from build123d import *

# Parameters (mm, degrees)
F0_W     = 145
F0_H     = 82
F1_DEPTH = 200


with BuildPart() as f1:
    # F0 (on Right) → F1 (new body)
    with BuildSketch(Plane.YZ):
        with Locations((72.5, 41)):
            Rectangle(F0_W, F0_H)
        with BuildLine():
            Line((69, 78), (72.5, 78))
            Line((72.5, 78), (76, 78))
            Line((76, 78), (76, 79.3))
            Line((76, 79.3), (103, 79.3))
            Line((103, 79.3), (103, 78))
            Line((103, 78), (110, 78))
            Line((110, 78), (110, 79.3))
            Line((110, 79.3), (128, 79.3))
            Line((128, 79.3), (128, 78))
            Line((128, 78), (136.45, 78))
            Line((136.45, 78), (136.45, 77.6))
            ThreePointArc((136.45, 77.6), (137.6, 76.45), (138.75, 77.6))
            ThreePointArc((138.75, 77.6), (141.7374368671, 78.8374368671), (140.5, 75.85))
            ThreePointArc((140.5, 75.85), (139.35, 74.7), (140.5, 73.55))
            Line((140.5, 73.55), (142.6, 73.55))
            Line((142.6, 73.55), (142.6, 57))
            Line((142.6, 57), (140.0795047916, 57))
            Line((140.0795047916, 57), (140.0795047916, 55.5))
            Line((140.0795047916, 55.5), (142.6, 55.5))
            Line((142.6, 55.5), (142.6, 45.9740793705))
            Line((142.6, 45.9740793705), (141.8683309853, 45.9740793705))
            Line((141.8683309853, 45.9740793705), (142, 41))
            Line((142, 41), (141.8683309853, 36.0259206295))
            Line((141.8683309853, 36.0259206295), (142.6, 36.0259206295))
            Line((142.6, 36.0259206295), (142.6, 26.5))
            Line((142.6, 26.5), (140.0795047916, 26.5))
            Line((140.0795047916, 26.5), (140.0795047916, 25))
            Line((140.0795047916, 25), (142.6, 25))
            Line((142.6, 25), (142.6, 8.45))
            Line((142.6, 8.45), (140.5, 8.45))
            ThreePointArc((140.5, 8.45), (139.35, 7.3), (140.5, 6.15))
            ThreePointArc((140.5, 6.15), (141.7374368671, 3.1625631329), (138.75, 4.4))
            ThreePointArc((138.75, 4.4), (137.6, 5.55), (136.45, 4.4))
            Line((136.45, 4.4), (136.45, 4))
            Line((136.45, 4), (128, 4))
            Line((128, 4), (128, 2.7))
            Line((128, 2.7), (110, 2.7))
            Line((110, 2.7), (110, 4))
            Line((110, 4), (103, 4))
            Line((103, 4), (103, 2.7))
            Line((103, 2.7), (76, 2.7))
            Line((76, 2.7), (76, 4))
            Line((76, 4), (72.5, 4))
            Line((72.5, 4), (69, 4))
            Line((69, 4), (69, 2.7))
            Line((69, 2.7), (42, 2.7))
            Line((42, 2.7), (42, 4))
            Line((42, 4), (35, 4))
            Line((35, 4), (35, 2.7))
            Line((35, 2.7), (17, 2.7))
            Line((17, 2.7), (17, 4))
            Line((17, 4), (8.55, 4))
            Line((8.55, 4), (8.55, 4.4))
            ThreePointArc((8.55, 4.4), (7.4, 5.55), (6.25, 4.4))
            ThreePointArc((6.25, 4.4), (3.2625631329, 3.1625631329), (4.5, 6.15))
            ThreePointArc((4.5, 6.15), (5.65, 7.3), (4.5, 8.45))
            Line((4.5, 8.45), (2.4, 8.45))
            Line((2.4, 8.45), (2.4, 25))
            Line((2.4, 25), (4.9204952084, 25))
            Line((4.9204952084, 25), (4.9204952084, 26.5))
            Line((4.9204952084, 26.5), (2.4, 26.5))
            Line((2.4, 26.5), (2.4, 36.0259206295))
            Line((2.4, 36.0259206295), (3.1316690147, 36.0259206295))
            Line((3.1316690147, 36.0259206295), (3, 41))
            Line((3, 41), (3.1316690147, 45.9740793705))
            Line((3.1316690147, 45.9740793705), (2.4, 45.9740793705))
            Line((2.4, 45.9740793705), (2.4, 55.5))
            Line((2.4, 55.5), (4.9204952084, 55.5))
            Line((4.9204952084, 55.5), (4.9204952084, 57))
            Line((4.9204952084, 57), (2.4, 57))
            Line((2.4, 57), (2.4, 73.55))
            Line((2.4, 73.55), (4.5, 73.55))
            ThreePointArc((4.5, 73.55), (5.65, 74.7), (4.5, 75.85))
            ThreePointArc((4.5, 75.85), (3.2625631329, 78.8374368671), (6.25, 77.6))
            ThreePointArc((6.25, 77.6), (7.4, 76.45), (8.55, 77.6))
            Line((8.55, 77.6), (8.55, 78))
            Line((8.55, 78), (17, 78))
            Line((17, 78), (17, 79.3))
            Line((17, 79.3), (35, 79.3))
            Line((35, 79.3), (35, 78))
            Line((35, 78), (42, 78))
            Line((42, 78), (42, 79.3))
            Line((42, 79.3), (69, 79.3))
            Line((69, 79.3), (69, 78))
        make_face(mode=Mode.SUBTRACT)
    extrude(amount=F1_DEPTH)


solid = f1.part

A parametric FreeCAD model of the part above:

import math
import FreeCAD as App
import Part
import Sketcher
from FreeCAD import Vector
Q = App.Units.Quantity


def add_polygon(sketch, points):
    """Adds a closed chain of lines whose ends are joined by coincident constraints."""
    first, n = sketch.GeometryCount, len(points)
    for a, b in zip(points, points[1:] + points[:1]):
        sketch.addGeometry(Part.LineSegment(App.Vector(*a, 0), App.Vector(*b, 0)), False)
    for i in range(n):
        sketch.addConstraint(Sketcher.Constraint("Coincident", first + i, 2, first + (i + 1) % n, 1))

doc = App.newDocument("Part")
params = doc.addObject("Spreadsheet::Sheet", "Params")
for row, (alias, value) in enumerate([
    ("sketch1_width", "145 mm"),
    ("sketch1_width2", "7 mm"),
    ("sketch1_width3", "27 mm"),
    ("sketch1_width4", "18 mm"),
    ("sketch1_height", "82 mm"),
    ("pad1_length", "200 mm"),
], start=1):
    params.set(f"A{row}", alias)
    params.set(f"B{row}", "=" + value)
    params.setAlias(f"B{row}", alias)

body = doc.addObject("PartDesign::Body", "Body")

# Sketch on YZ plane
sketch1 = body.newObject("Sketcher::SketchObject", "Sketch")
sketch1.AttachmentSupport = (doc.getObject("YZ_Plane"), [""])
sketch1.MapMode = "FlatFace"
add_polygon(sketch1, [(0, 82), (0, 0), (145, 0), (145, 82)])  # lines 0-3
sketch1.addGeometry(Part.LineSegment(Vector(69, 79.3, 0), Vector(69, 78, 0)), False)  # 4
sketch1.addGeometry(Part.LineSegment(Vector(69, 78, 0), Vector(76, 78, 0)), False)  # 5
sketch1.addGeometry(Part.LineSegment(Vector(76, 78, 0), Vector(76, 79.3, 0)), False)  # 6
sketch1.addGeometry(Part.LineSegment(Vector(76, 79.3, 0), Vector(103, 79.3, 0)), False)  # 7
sketch1.addGeometry(Part.LineSegment(Vector(103, 79.3, 0), Vector(103, 78, 0)), False)  # 8
sketch1.addGeometry(Part.LineSegment(Vector(103, 78, 0), Vector(110, 78, 0)), False)  # 9
sketch1.addGeometry(Part.LineSegment(Vector(110, 78, 0), Vector(110, 79.3, 0)), False)  # 10
sketch1.addGeometry(Part.LineSegment(Vector(110, 79.3, 0), Vector(128, 79.3, 0)), False)  # 11
sketch1.addGeometry(Part.LineSegment(Vector(128, 79.3, 0), Vector(128, 78, 0)), False)  # 12
sketch1.addGeometry(Part.LineSegment(Vector(128, 78, 0), Vector(136.45, 78, 0)), False)  # 13
sketch1.addGeometry(Part.LineSegment(Vector(136.45, 78, 0), Vector(136.45, 77.6, 0)), False)  # 14
sketch1.addGeometry(Part.ArcOfCircle(Part.Circle(Vector(137.6, 77.6, 0), Vector(0, 0, 1), 1.15), math.radians(180), math.radians(360)), False)  # 15
sketch1.addGeometry(Part.ArcOfCircle(Part.Circle(Vector(140.5, 77.6, 0), Vector(0, 0, 1), 1.75), math.radians(-90), math.radians(180)), False)  # 16
sketch1.addGeometry(Part.ArcOfCircle(Part.Circle(Vector(140.5, 74.7, 0), Vector(0, 0, 1), 1.15), math.radians(90), math.radians(270)), False)  # 17
sketch1.addGeometry(Part.LineSegment(Vector(140.5, 73.55, 0), Vector(142.6, 73.55, 0)), False)  # 18
sketch1.addGeometry(Part.LineSegment(Vector(142.6, 73.55, 0), Vector(142.6, 57, 0)), False)  # 19
sketch1.addGeometry(Part.LineSegment(Vector(142.6, 57, 0), Vector(140.079505, 57, 0)), False)  # 20
sketch1.addGeometry(Part.LineSegment(Vector(140.079505, 57, 0), Vector(140.079505, 55.5, 0)), False)  # 21
sketch1.addGeometry(Part.LineSegment(Vector(140.079505, 55.5, 0), Vector(142.6, 55.5, 0)), False)  # 22
sketch1.addGeometry(Part.LineSegment(Vector(142.6, 55.5, 0), Vector(142.6, 45.974079, 0)), False)  # 23
sketch1.addGeometry(Part.LineSegment(Vector(142.6, 45.974079, 0), Vector(141.868331, 45.974079, 0)), False)  # 24
sketch1.addGeometry(Part.LineSegment(Vector(141.868331, 45.974079, 0), Vector(142, 41, 0)), False)  # 25
sketch1.addGeometry(Part.LineSegment(Vector(142, 41, 0), Vector(141.868331, 36.025921, 0)), False)  # 26
sketch1.addGeometry(Part.LineSegment(Vector(141.868331, 36.025921, 0), Vector(142.6, 36.025921, 0)), False)  # 27
sketch1.addGeometry(Part.LineSegment(Vector(142.6, 36.025921, 0), Vector(142.6, 26.5, 0)), False)  # 28
sketch1.addGeometry(Part.LineSegment(Vector(142.6, 26.5, 0), Vector(140.079505, 26.5, 0)), False)  # 29
sketch1.addGeometry(Part.LineSegment(Vector(140.079505, 26.5, 0), Vector(140.079505, 25, 0)), False)  # 30
sketch1.addGeometry(Part.LineSegment(Vector(140.079505, 25, 0), Vector(142.6, 25, 0)), False)  # 31
sketch1.addGeometry(Part.LineSegment(Vector(142.6, 25, 0), Vector(142.6, 8.45, 0)), False)  # 32
sketch1.addGeometry(Part.LineSegment(Vector(142.6, 8.45, 0), Vector(140.5, 8.45, 0)), False)  # 33
sketch1.addGeometry(Part.ArcOfCircle(Part.Circle(Vector(140.5, 7.3, 0), Vector(0, 0, 1), 1.15), math.radians(90), math.radians(270)), False)  # 34
sketch1.addGeometry(Part.ArcOfCircle(Part.Circle(Vector(140.5, 4.4, 0), Vector(0, 0, 1), 1.75), math.radians(180), math.radians(450)), False)  # 35
sketch1.addGeometry(Part.ArcOfCircle(Part.Circle(Vector(137.6, 4.4, 0), Vector(0, 0, 1), 1.15), math.radians(0), math.radians(180)), False)  # 36
sketch1.addGeometry(Part.LineSegment(Vector(136.45, 4.4, 0), Vector(136.45, 4, 0)), False)  # 37
sketch1.addGeometry(Part.LineSegment(Vector(136.45, 4, 0), Vector(128, 4, 0)), False)  # 38
sketch1.addGeometry(Part.LineSegment(Vector(128, 4, 0), Vector(128, 2.7, 0)), False)  # 39
sketch1.addGeometry(Part.LineSegment(Vector(128, 2.7, 0), Vector(110, 2.7, 0)), False)  # 40
sketch1.addGeometry(Part.LineSegment(Vector(110, 2.7, 0), Vector(110, 4, 0)), False)  # 41
sketch1.addGeometry(Part.LineSegment(Vector(110, 4, 0), Vector(103, 4, 0)), False)  # 42
sketch1.addGeometry(Part.LineSegment(Vector(103, 4, 0), Vector(103, 2.7, 0)), False)  # 43
sketch1.addGeometry(Part.LineSegment(Vector(103, 2.7, 0), Vector(76, 2.7, 0)), False)  # 44
sketch1.addGeometry(Part.LineSegment(Vector(76, 2.7, 0), Vector(76, 4, 0)), False)  # 45
sketch1.addGeometry(Part.LineSegment(Vector(76, 4, 0), Vector(69, 4, 0)), False)  # 46
sketch1.addGeometry(Part.LineSegment(Vector(69, 4, 0), Vector(69, 2.7, 0)), False)  # 47
sketch1.addGeometry(Part.LineSegment(Vector(69, 2.7, 0), Vector(42, 2.7, 0)), False)  # 48
sketch1.addGeometry(Part.LineSegment(Vector(42, 2.7, 0), Vector(42, 4, 0)), False)  # 49
sketch1.addGeometry(Part.LineSegment(Vector(42, 4, 0), Vector(35, 4, 0)), False)  # 50
sketch1.addGeometry(Part.LineSegment(Vector(35, 4, 0), Vector(35, 2.7, 0)), False)  # 51
sketch1.addGeometry(Part.LineSegment(Vector(35, 2.7, 0), Vector(17, 2.7, 0)), False)  # 52
sketch1.addGeometry(Part.LineSegment(Vector(17, 2.7, 0), Vector(17, 4, 0)), False)  # 53
sketch1.addGeometry(Part.LineSegment(Vector(17, 4, 0), Vector(8.55, 4, 0)), False)  # 54
sketch1.addGeometry(Part.LineSegment(Vector(8.55, 4, 0), Vector(8.55, 4.4, 0)), False)  # 55
sketch1.addGeometry(Part.ArcOfCircle(Part.Circle(Vector(7.4, 4.4, 0), Vector(0, 0, 1), 1.15), math.radians(0), math.radians(180)), False)  # 56
sketch1.addGeometry(Part.ArcOfCircle(Part.Circle(Vector(4.5, 4.4, 0), Vector(0, 0, 1), 1.75), math.radians(90), math.radians(360)), False)  # 57
sketch1.addGeometry(Part.ArcOfCircle(Part.Circle(Vector(4.5, 7.3, 0), Vector(0, 0, 1), 1.15), math.radians(-90), math.radians(90)), False)  # 58
sketch1.addGeometry(Part.LineSegment(Vector(4.5, 8.45, 0), Vector(2.4, 8.45, 0)), False)  # 59
sketch1.addGeometry(Part.LineSegment(Vector(2.4, 8.45, 0), Vector(2.4, 25, 0)), False)  # 60
sketch1.addGeometry(Part.LineSegment(Vector(2.4, 25, 0), Vector(4.920495, 25, 0)), False)  # 61
sketch1.addGeometry(Part.LineSegment(Vector(4.920495, 25, 0), Vector(4.920495, 26.5, 0)), False)  # 62
sketch1.addGeometry(Part.LineSegment(Vector(4.920495, 26.5, 0), Vector(2.4, 26.5, 0)), False)  # 63
sketch1.addGeometry(Part.LineSegment(Vector(2.4, 26.5, 0), Vector(2.4, 36.025921, 0)), False)  # 64
sketch1.addGeometry(Part.LineSegment(Vector(2.4, 36.025921, 0), Vector(3.131669, 36.025921, 0)), False)  # 65
sketch1.addGeometry(Part.LineSegment(Vector(3.131669, 36.025921, 0), Vector(3, 41, 0)), False)  # 66
sketch1.addGeometry(Part.LineSegment(Vector(3, 41, 0), Vector(3.131669, 45.974079, 0)), False)  # 67
sketch1.addGeometry(Part.LineSegment(Vector(3.131669, 45.974079, 0), Vector(2.4, 45.974079, 0)), False)  # 68
sketch1.addGeometry(Part.LineSegment(Vector(2.4, 45.974079, 0), Vector(2.4, 55.5, 0)), False)  # 69
sketch1.addGeometry(Part.LineSegment(Vector(2.4, 55.5, 0), Vector(4.920495, 55.5, 0)), False)  # 70
sketch1.addGeometry(Part.LineSegment(Vector(4.920495, 55.5, 0), Vector(4.920495, 57, 0)), False)  # 71
sketch1.addGeometry(Part.LineSegment(Vector(4.920495, 57, 0), Vector(2.4, 57, 0)), False)  # 72
sketch1.addGeometry(Part.LineSegment(Vector(2.4, 57, 0), Vector(2.4, 73.55, 0)), False)  # 73
sketch1.addGeometry(Part.LineSegment(Vector(2.4, 73.55, 0), Vector(4.5, 73.55, 0)), False)  # 74
sketch1.addGeometry(Part.ArcOfCircle(Part.Circle(Vector(4.5, 74.7, 0), Vector(0, 0, 1), 1.15), math.radians(-90), math.radians(90)), False)  # 75
sketch1.addGeometry(Part.ArcOfCircle(Part.Circle(Vector(4.5, 77.6, 0), Vector(0, 0, 1), 1.75), math.radians(0), math.radians(270)), False)  # 76
sketch1.addGeometry(Part.ArcOfCircle(Part.Circle(Vector(7.4, 77.6, 0), Vector(0, 0, 1), 1.15), math.radians(180), math.radians(360)), False)  # 77
sketch1.addGeometry(Part.LineSegment(Vector(8.55, 77.6, 0), Vector(8.55, 78, 0)), False)  # 78
sketch1.addGeometry(Part.LineSegment(Vector(8.55, 78, 0), Vector(17, 78, 0)), False)  # 79
sketch1.addGeometry(Part.LineSegment(Vector(17, 78, 0), Vector(17, 79.3, 0)), False)  # 80
sketch1.addGeometry(Part.LineSegment(Vector(17, 79.3, 0), Vector(35, 79.3, 0)), False)  # 81
sketch1.addGeometry(Part.LineSegment(Vector(35, 79.3, 0), Vector(35, 78, 0)), False)  # 82
sketch1.addGeometry(Part.LineSegment(Vector(35, 78, 0), Vector(42, 78, 0)), False)  # 83
sketch1.addGeometry(Part.LineSegment(Vector(42, 78, 0), Vector(42, 79.3, 0)), False)  # 84
sketch1.addGeometry(Part.LineSegment(Vector(42, 79.3, 0), Vector(69, 79.3, 0)), False)  # 85
sketch1.addConstraint(Sketcher.Constraint("Coincident", 4, 2, 5, 1))
sketch1.addConstraint(Sketcher.Constraint("Coincident", 5, 2, 6, 1))
sketch1.addConstraint(Sketcher.Constraint("Coincident", 6, 2, 7, 1))
sketch1.addConstraint(Sketcher.Constraint("Coincident", 7, 2, 8, 1))
sketch1.addConstraint(Sketcher.Constraint("Coincident", 8, 2, 9, 1))
sketch1.addConstraint(Sketcher.Constraint("Coincident", 9, 2, 10, 1))
sketch1.addConstraint(Sketcher.Constraint("Coincident", 10, 2, 11, 1))
sketch1.addConstraint(Sketcher.Constraint("Coincident", 11, 2, 12, 1))
sketch1.addConstraint(Sketcher.Constraint("Coincident", 12, 2, 13, 1))
sketch1.addConstraint(Sketcher.Constraint("Coincident", 13, 2, 14, 1))
sketch1.addConstraint(Sketcher.Constraint("Tangent", 14, 2, 15, 1))
sketch1.addConstraint(Sketcher.Constraint("Tangent", 15, 2, 16, 2))
sketch1.addConstraint(Sketcher.Constraint("Tangent", 16, 1, 17, 1))
sketch1.addConstraint(Sketcher.Constraint("Tangent", 17, 2, 18, 1))
sketch1.addConstraint(Sketcher.Constraint("Coincident", 18, 2, 19, 1))
sketch1.addConstraint(Sketcher.Constraint("Coincident", 19, 2, 20, 1))
sketch1.addConstraint(Sketcher.Constraint("Coincident", 20, 2, 21, 1))
sketch1.addConstraint(Sketcher.Constraint("Coincident", 21, 2, 22, 1))
sketch1.addConstraint(Sketcher.Constraint("Coincident", 22, 2, 23, 1))
sketch1.addConstraint(Sketcher.Constraint("Coincident", 23, 2, 24, 1))
sketch1.addConstraint(Sketcher.Constraint("Coincident", 24, 2, 25, 1))
sketch1.addConstraint(Sketcher.Constraint("Coincident", 25, 2, 26, 1))
sketch1.addConstraint(Sketcher.Constraint("Coincident", 26, 2, 27, 1))
sketch1.addConstraint(Sketcher.Constraint("Coincident", 27, 2, 28, 1))
sketch1.addConstraint(Sketcher.Constraint("Coincident", 28, 2, 29, 1))
sketch1.addConstraint(Sketcher.Constraint("Coincident", 29, 2, 30, 1))
sketch1.addConstraint(Sketcher.Constraint("Coincident", 30, 2, 31, 1))
sketch1.addConstraint(Sketcher.Constraint("Coincident", 31, 2, 32, 1))
sketch1.addConstraint(Sketcher.Constraint("Coincident", 32, 2, 33, 1))
sketch1.addConstraint(Sketcher.Constraint("Tangent", 33, 2, 34, 1))
sketch1.addConstraint(Sketcher.Constraint("Tangent", 34, 2, 35, 2))
sketch1.addConstraint(Sketcher.Constraint("Tangent", 35, 1, 36, 1))
sketch1.addConstraint(Sketcher.Constraint("Tangent", 36, 2, 37, 1))
sketch1.addConstraint(Sketcher.Constraint("Coincident", 37, 2, 38, 1))
sketch1.addConstraint(Sketcher.Constraint("Coincident", 38, 2, 39, 1))
sketch1.addConstraint(Sketcher.Constraint("Coincident", 39, 2, 40, 1))
sketch1.addConstraint(Sketcher.Constraint("Coincident", 40, 2, 41, 1))
sketch1.addConstraint(Sketcher.Constraint("Coincident", 41, 2, 42, 1))
sketch1.addConstraint(Sketcher.Constraint("Coincident", 42, 2, 43, 1))
sketch1.addConstraint(Sketcher.Constraint("Coincident", 43, 2, 44, 1))
sketch1.addConstraint(Sketcher.Constraint("Coincident", 44, 2, 45, 1))
sketch1.addConstraint(Sketcher.Constraint("Coincident", 45, 2, 46, 1))
sketch1.addConstraint(Sketcher.Constraint("Coincident", 46, 2, 47, 1))
sketch1.addConstraint(Sketcher.Constraint("Coincident", 47, 2, 48, 1))
sketch1.addConstraint(Sketcher.Constraint("Coincident", 48, 2, 49, 1))
sketch1.addConstraint(Sketcher.Constraint("Coincident", 49, 2, 50, 1))
sketch1.addConstraint(Sketcher.Constraint("Coincident", 50, 2, 51, 1))
sketch1.addConstraint(Sketcher.Constraint("Coincident", 51, 2, 52, 1))
sketch1.addConstraint(Sketcher.Constraint("Coincident", 52, 2, 53, 1))
sketch1.addConstraint(Sketcher.Constraint("Coincident", 53, 2, 54, 1))
sketch1.addConstraint(Sketcher.Constraint("Coincident", 54, 2, 55, 1))
sketch1.addConstraint(Sketcher.Constraint("Tangent", 55, 2, 56, 1))
sketch1.addConstraint(Sketcher.Constraint("Tangent", 56, 2, 57, 2))
sketch1.addConstraint(Sketcher.Constraint("Tangent", 57, 1, 58, 1))
sketch1.addConstraint(Sketcher.Constraint("Tangent", 58, 2, 59, 1))
sketch1.addConstraint(Sketcher.Constraint("Coincident", 59, 2, 60, 1))
sketch1.addConstraint(Sketcher.Constraint("Coincident", 60, 2, 61, 1))
sketch1.addConstraint(Sketcher.Constraint("Coincident", 61, 2, 62, 1))
sketch1.addConstraint(Sketcher.Constraint("Coincident", 62, 2, 63, 1))
sketch1.addConstraint(Sketcher.Constraint("Coincident", 63, 2, 64, 1))
sketch1.addConstraint(Sketcher.Constraint("Coincident", 64, 2, 65, 1))
sketch1.addConstraint(Sketcher.Constraint("Coincident", 65, 2, 66, 1))
sketch1.addConstraint(Sketcher.Constraint("Coincident", 66, 2, 67, 1))
sketch1.addConstraint(Sketcher.Constraint("Coincident", 67, 2, 68, 1))
sketch1.addConstraint(Sketcher.Constraint("Coincident", 68, 2, 69, 1))
sketch1.addConstraint(Sketcher.Constraint("Coincident", 69, 2, 70, 1))
sketch1.addConstraint(Sketcher.Constraint("Coincident", 70, 2, 71, 1))
sketch1.addConstraint(Sketcher.Constraint("Coincident", 71, 2, 72, 1))
sketch1.addConstraint(Sketcher.Constraint("Coincident", 72, 2, 73, 1))
sketch1.addConstraint(Sketcher.Constraint("Coincident", 73, 2, 74, 1))
sketch1.addConstraint(Sketcher.Constraint("Tangent", 74, 2, 75, 1))
sketch1.addConstraint(Sketcher.Constraint("Tangent", 75, 2, 76, 2))
sketch1.addConstraint(Sketcher.Constraint("Tangent", 76, 1, 77, 1))
sketch1.addConstraint(Sketcher.Constraint("Tangent", 77, 2, 78, 1))
sketch1.addConstraint(Sketcher.Constraint("Coincident", 78, 2, 79, 1))
sketch1.addConstraint(Sketcher.Constraint("Coincident", 79, 2, 80, 1))
sketch1.addConstraint(Sketcher.Constraint("Coincident", 80, 2, 81, 1))
sketch1.addConstraint(Sketcher.Constraint("Coincident", 81, 2, 82, 1))
sketch1.addConstraint(Sketcher.Constraint("Coincident", 82, 2, 83, 1))
sketch1.addConstraint(Sketcher.Constraint("Coincident", 83, 2, 84, 1))
sketch1.addConstraint(Sketcher.Constraint("Coincident", 84, 2, 85, 1))
sketch1.addConstraint(Sketcher.Constraint("Coincident", 85, 2, 4, 1))
sketch1.addConstraint(Sketcher.Constraint("Vertical", 0))
sketch1.addConstraint(Sketcher.Constraint("Horizontal", 1))
sketch1.addConstraint(Sketcher.Constraint("Vertical", 2))
sketch1.addConstraint(Sketcher.Constraint("Horizontal", 3))
sketch1.addConstraint(Sketcher.Constraint("Vertical", 4))
sketch1.addConstraint(Sketcher.Constraint("Horizontal", 5))
sketch1.addConstraint(Sketcher.Constraint("Vertical", 6))
sketch1.addConstraint(Sketcher.Constraint("Horizontal", 7))
sketch1.addConstraint(Sketcher.Constraint("Vertical", 8))
sketch1.addConstraint(Sketcher.Constraint("Horizontal", 9))
sketch1.addConstraint(Sketcher.Constraint("Vertical", 10))
sketch1.addConstraint(Sketcher.Constraint("Horizontal", 11))
sketch1.addConstraint(Sketcher.Constraint("Vertical", 12))
sketch1.addConstraint(Sketcher.Constraint("Horizontal", 13))
sketch1.addConstraint(Sketcher.Constraint("Vertical", 14))
sketch1.addConstraint(Sketcher.Constraint("Horizontal", 18))
sketch1.addConstraint(Sketcher.Constraint("Vertical", 19))
sketch1.addConstraint(Sketcher.Constraint("Horizontal", 20))
sketch1.addConstraint(Sketcher.Constraint("Vertical", 21))
sketch1.addConstraint(Sketcher.Constraint("Horizontal", 22))
sketch1.addConstraint(Sketcher.Constraint("Vertical", 23))
sketch1.addConstraint(Sketcher.Constraint("Horizontal", 24))
sketch1.addConstraint(Sketcher.Constraint("Horizontal", 27))
sketch1.addConstraint(Sketcher.Constraint("Vertical", 28))
sketch1.addConstraint(Sketcher.Constraint("Horizontal", 29))
sketch1.addConstraint(Sketcher.Constraint("Vertical", 30))
sketch1.addConstraint(Sketcher.Constraint("Horizontal", 31))
sketch1.addConstraint(Sketcher.Constraint("Vertical", 32))
sketch1.addConstraint(Sketcher.Constraint("Horizontal", 33))
sketch1.addConstraint(Sketcher.Constraint("Vertical", 37))
sketch1.addConstraint(Sketcher.Constraint("Horizontal", 38))
sketch1.addConstraint(Sketcher.Constraint("Vertical", 39))
sketch1.addConstraint(Sketcher.Constraint("Horizontal", 40))
sketch1.addConstraint(Sketcher.Constraint("Vertical", 41))
sketch1.addConstraint(Sketcher.Constraint("Horizontal", 42))
sketch1.addConstraint(Sketcher.Constraint("Vertical", 43))
sketch1.addConstraint(Sketcher.Constraint("Horizontal", 44))
sketch1.addConstraint(Sketcher.Constraint("Vertical", 45))
sketch1.addConstraint(Sketcher.Constraint("Horizontal", 46))
sketch1.addConstraint(Sketcher.Constraint("Vertical", 47))
sketch1.addConstraint(Sketcher.Constraint("Horizontal", 48))
sketch1.addConstraint(Sketcher.Constraint("Vertical", 49))
sketch1.addConstraint(Sketcher.Constraint("Horizontal", 50))
sketch1.addConstraint(Sketcher.Constraint("Vertical", 51))
sketch1.addConstraint(Sketcher.Constraint("Horizontal", 52))
sketch1.addConstraint(Sketcher.Constraint("Vertical", 53))
sketch1.addConstraint(Sketcher.Constraint("Horizontal", 54))
sketch1.addConstraint(Sketcher.Constraint("Vertical", 55))
sketch1.addConstraint(Sketcher.Constraint("Horizontal", 59))
sketch1.addConstraint(Sketcher.Constraint("Vertical", 60))
sketch1.addConstraint(Sketcher.Constraint("Horizontal", 61))
sketch1.addConstraint(Sketcher.Constraint("Vertical", 62))
sketch1.addConstraint(Sketcher.Constraint("Horizontal", 63))
sketch1.addConstraint(Sketcher.Constraint("Vertical", 64))
sketch1.addConstraint(Sketcher.Constraint("Horizontal", 65))
sketch1.addConstraint(Sketcher.Constraint("Horizontal", 68))
sketch1.addConstraint(Sketcher.Constraint("Vertical", 69))
sketch1.addConstraint(Sketcher.Constraint("Horizontal", 70))
sketch1.addConstraint(Sketcher.Constraint("Vertical", 71))
sketch1.addConstraint(Sketcher.Constraint("Horizontal", 72))
sketch1.addConstraint(Sketcher.Constraint("Vertical", 73))
sketch1.addConstraint(Sketcher.Constraint("Horizontal", 74))
sketch1.addConstraint(Sketcher.Constraint("Vertical", 78))
sketch1.addConstraint(Sketcher.Constraint("Horizontal", 79))
sketch1.addConstraint(Sketcher.Constraint("Vertical", 80))
sketch1.addConstraint(Sketcher.Constraint("Horizontal", 81))
sketch1.addConstraint(Sketcher.Constraint("Vertical", 82))
sketch1.addConstraint(Sketcher.Constraint("Horizontal", 83))
sketch1.addConstraint(Sketcher.Constraint("Vertical", 84))
sketch1.addConstraint(Sketcher.Constraint("Horizontal", 85))
sketch1.addConstraint(Sketcher.Constraint("Coincident", 0, 2, -1, 1))
sketch1.addConstraint(Sketcher.Constraint("Equal", 15, 17))
sketch1.addConstraint(Sketcher.Constraint("Equal", 17, 34))
sketch1.addConstraint(Sketcher.Constraint("Equal", 16, 35))
sketch1.addConstraint(Sketcher.Constraint("Equal", 34, 36))
sketch1.addConstraint(Sketcher.Constraint("Equal", 36, 56))
sketch1.addConstraint(Sketcher.Constraint("Equal", 35, 57))
sketch1.addConstraint(Sketcher.Constraint("Equal", 56, 58))
sketch1.addConstraint(Sketcher.Constraint("Equal", 58, 75))
sketch1.addConstraint(Sketcher.Constraint("Equal", 57, 76))
sketch1.addConstraint(Sketcher.Constraint("Equal", 75, 77))
sketch1.addConstraint(Sketcher.Constraint("Parallel", 25, 66))
sketch1.addConstraint(Sketcher.Constraint("Parallel", 26, 67))
sketch1.addConstraint(Sketcher.Constraint("Horizontal", 15, 3, 16, 3))
sketch1.addConstraint(Sketcher.Constraint("Horizontal", 35, 3, 36, 3))
sketch1.addConstraint(Sketcher.Constraint("Horizontal", 36, 3, 56, 3))
sketch1.addConstraint(Sketcher.Constraint("Horizontal", 56, 3, 57, 3))
sketch1.addConstraint(Sketcher.Constraint("Horizontal", 17, 3, 75, 3))
sketch1.addConstraint(Sketcher.Constraint("Horizontal", 76, 3, 77, 3))
sketch1.addConstraint(Sketcher.Constraint("Horizontal", 5, 2, 8, 2))
sketch1.addConstraint(Sketcher.Constraint("Horizontal", 7, 2, 10, 2))
sketch1.addConstraint(Sketcher.Constraint("Horizontal", 9, 2, 12, 2))
sketch1.addConstraint(Sketcher.Constraint("Horizontal", 38, 2, 41, 2))
sketch1.addConstraint(Sketcher.Constraint("Horizontal", 40, 2, 43, 2))
sketch1.addConstraint(Sketcher.Constraint("Horizontal", 42, 2, 45, 2))
sketch1.addConstraint(Sketcher.Constraint("Horizontal", 44, 2, 47, 2))
sketch1.addConstraint(Sketcher.Constraint("Horizontal", 46, 2, 49, 2))
sketch1.addConstraint(Sketcher.Constraint("Horizontal", 48, 2, 51, 2))
sketch1.addConstraint(Sketcher.Constraint("Horizontal", 50, 2, 53, 2))
sketch1.addConstraint(Sketcher.Constraint("Horizontal", 31, 2, 60, 2))
sketch1.addConstraint(Sketcher.Constraint("Horizontal", 29, 2, 62, 2))
sketch1.addConstraint(Sketcher.Constraint("Horizontal", 27, 2, 64, 2))
sketch1.addConstraint(Sketcher.Constraint("Horizontal", 25, 2, 66, 2))
sketch1.addConstraint(Sketcher.Constraint("Horizontal", 24, 2, 67, 2))
sketch1.addConstraint(Sketcher.Constraint("Horizontal", 22, 2, 69, 2))
sketch1.addConstraint(Sketcher.Constraint("Horizontal", 20, 2, 71, 2))
sketch1.addConstraint(Sketcher.Constraint("Horizontal", 13, 2, 78, 2))
sketch1.addConstraint(Sketcher.Constraint("Horizontal", 11, 2, 80, 2))
sketch1.addConstraint(Sketcher.Constraint("Horizontal", 79, 2, 82, 2))
sketch1.addConstraint(Sketcher.Constraint("Horizontal", 81, 2, 84, 2))
sketch1.addConstraint(Sketcher.Constraint("Vertical", 16, 3, 17, 3))
sketch1.addConstraint(Sketcher.Constraint("Vertical", 17, 3, 34, 3))
sketch1.addConstraint(Sketcher.Constraint("Vertical", 34, 3, 35, 3))
sketch1.addConstraint(Sketcher.Constraint("Vertical", 57, 3, 58, 3))
sketch1.addConstraint(Sketcher.Constraint("Vertical", 58, 3, 75, 3))
sketch1.addConstraint(Sketcher.Constraint("Vertical", 75, 3, 76, 3))
sketch1.addConstraint(Sketcher.Constraint("Vertical", 19, 2, 22, 2))
sketch1.addConstraint(Sketcher.Constraint("Vertical", 24, 2, 26, 2))
sketch1.addConstraint(Sketcher.Constraint("Vertical", 23, 2, 27, 2))
sketch1.addConstraint(Sketcher.Constraint("Vertical", 21, 2, 29, 2))
sketch1.addConstraint(Sketcher.Constraint("Vertical", 28, 2, 31, 2))
sketch1.addConstraint(Sketcher.Constraint("Vertical", 12, 2, 38, 2))
sketch1.addConstraint(Sketcher.Constraint("Vertical", 10, 2, 40, 2))
sketch1.addConstraint(Sketcher.Constraint("Vertical", 8, 2, 42, 2))
sketch1.addConstraint(Sketcher.Constraint("Vertical", 6, 2, 44, 2))
sketch1.addConstraint(Sketcher.Constraint("Vertical", 4, 2, 46, 2))
sketch1.addConstraint(Sketcher.Constraint("Vertical", 60, 2, 63, 2))
sketch1.addConstraint(Sketcher.Constraint("Vertical", 65, 2, 67, 2))
sketch1.addConstraint(Sketcher.Constraint("Vertical", 64, 2, 68, 2))
sketch1.addConstraint(Sketcher.Constraint("Vertical", 62, 2, 70, 2))
sketch1.addConstraint(Sketcher.Constraint("Vertical", 69, 2, 72, 2))
sketch1.addConstraint(Sketcher.Constraint("Vertical", 53, 2, 79, 2))
sketch1.addConstraint(Sketcher.Constraint("Vertical", 51, 2, 81, 2))
sketch1.addConstraint(Sketcher.Constraint("Vertical", 49, 2, 83, 2))
sketch1.addConstraint(Sketcher.Constraint("Equal", 5, 9))
sketch1.addConstraint(Sketcher.Constraint("Equal", 44, 48))
sketch1.addConstraint(Sketcher.Constraint("Equal", 46, 50))
sketch1.addConstraint(Sketcher.Constraint("Equal", 40, 52))
sketch1.addConstraint(Sketcher.Constraint("Equal", 38, 54))
sketch1.addConstraint(Sketcher.Constraint("Equal", 33, 59))
sketch1.addConstraint(Sketcher.Constraint("Equal", 31, 61))
sketch1.addConstraint(Sketcher.Constraint("Equal", 27, 65))
sketch1.addConstraint(Sketcher.Constraint("Equal", 23, 28))
sketch1.addConstraint(Sketcher.Constraint("Equal", 21, 30))
sketch1.addConstraint(Sketcher.Constraint("Equal", 19, 32))
sketch1.addConstraint(Sketcher.Constraint("Equal", 14, 37))
sketch1.addConstraint(Sketcher.Constraint("Equal", 12, 39))
sketch1.addConstraint(Sketcher.Constraint("DistanceX", 1, 1, 1, 2, Q("145 mm")))
sketch1.addConstraint(Sketcher.Constraint("DistanceX", 5, 1, 5, 2, Q("7 mm")))
sketch1.addConstraint(Sketcher.Constraint("DistanceX", 7, 1, 7, 2, Q("27 mm")))
sketch1.addConstraint(Sketcher.Constraint("DistanceX", 11, 1, 11, 2, Q("18 mm")))
sketch1.addConstraint(Sketcher.Constraint("DistanceY", 0, 2, 0, 1, Q("82 mm")))
sketch1.addConstraint(Sketcher.Constraint("Radius", 15, Q("1.15 mm")))
sketch1.addConstraint(Sketcher.Constraint("Radius", 16, Q("1.75 mm")))
sketch1.addConstraint(Sketcher.Constraint("DistanceX", 18, 1, 18, 2, Q("2.1 mm")))
sketch1.addConstraint(Sketcher.Constraint("DistanceY", 4, 2, 4, 1, Q("1.3 mm")))
sketch1.addConstraint(Sketcher.Constraint("DistanceY", 14, 2, 14, 1, Q("0.4 mm")))
sketch1.addConstraint(Sketcher.Constraint("DistanceY", 21, 2, 21, 1, Q("1.5 mm")))
sketch1.addConstraint(Sketcher.Constraint("DistanceX", -1, 1, 4, 2, Q("69 mm")))
sketch1.addConstraint(Sketcher.Constraint("DistanceY", -1, 1, 4, 2, Q("78 mm")))
sketch1.addConstraint(Sketcher.Constraint("DistanceY", -1, 1, 19, 2, Q("57 mm")))
sketch1.addConstraint(Sketcher.Constraint("DistanceX", -1, 1, 25, 2, Q("142 mm")))
sketch1.addConstraint(Sketcher.Constraint("DistanceY", -1, 1, 25, 2, Q("41 mm")))
sketch1.addConstraint(Sketcher.Constraint("DistanceX", 13, 1, 13, 2, Q("8.45 mm")))
sketch1.addConstraint(Sketcher.Constraint("DistanceX", 24, 2, 24, 1, Q("0.731669 mm")))
sketch1.addConstraint(Sketcher.Constraint("DistanceY", 23, 2, 23, 1, Q("9.525921 mm")))
sketch1.addConstraint(Sketcher.Constraint("DistanceX", 20, 2, 20, 1, Q("2.520495 mm")))
sketch1.setExpression("Constraints[233]", "Params.sketch1_width")
sketch1.setExpression("Constraints[234]", "Params.sketch1_width2")
sketch1.setExpression("Constraints[235]", "Params.sketch1_width3")
sketch1.setExpression("Constraints[236]", "Params.sketch1_width4")
sketch1.setExpression("Constraints[237]", "Params.sketch1_height")
pad1 = body.newObject("PartDesign::Pad", "Pad")
pad1.Profile = sketch1
pad1.setExpression("Length", "Params.pad1_length")

doc.recompute()
